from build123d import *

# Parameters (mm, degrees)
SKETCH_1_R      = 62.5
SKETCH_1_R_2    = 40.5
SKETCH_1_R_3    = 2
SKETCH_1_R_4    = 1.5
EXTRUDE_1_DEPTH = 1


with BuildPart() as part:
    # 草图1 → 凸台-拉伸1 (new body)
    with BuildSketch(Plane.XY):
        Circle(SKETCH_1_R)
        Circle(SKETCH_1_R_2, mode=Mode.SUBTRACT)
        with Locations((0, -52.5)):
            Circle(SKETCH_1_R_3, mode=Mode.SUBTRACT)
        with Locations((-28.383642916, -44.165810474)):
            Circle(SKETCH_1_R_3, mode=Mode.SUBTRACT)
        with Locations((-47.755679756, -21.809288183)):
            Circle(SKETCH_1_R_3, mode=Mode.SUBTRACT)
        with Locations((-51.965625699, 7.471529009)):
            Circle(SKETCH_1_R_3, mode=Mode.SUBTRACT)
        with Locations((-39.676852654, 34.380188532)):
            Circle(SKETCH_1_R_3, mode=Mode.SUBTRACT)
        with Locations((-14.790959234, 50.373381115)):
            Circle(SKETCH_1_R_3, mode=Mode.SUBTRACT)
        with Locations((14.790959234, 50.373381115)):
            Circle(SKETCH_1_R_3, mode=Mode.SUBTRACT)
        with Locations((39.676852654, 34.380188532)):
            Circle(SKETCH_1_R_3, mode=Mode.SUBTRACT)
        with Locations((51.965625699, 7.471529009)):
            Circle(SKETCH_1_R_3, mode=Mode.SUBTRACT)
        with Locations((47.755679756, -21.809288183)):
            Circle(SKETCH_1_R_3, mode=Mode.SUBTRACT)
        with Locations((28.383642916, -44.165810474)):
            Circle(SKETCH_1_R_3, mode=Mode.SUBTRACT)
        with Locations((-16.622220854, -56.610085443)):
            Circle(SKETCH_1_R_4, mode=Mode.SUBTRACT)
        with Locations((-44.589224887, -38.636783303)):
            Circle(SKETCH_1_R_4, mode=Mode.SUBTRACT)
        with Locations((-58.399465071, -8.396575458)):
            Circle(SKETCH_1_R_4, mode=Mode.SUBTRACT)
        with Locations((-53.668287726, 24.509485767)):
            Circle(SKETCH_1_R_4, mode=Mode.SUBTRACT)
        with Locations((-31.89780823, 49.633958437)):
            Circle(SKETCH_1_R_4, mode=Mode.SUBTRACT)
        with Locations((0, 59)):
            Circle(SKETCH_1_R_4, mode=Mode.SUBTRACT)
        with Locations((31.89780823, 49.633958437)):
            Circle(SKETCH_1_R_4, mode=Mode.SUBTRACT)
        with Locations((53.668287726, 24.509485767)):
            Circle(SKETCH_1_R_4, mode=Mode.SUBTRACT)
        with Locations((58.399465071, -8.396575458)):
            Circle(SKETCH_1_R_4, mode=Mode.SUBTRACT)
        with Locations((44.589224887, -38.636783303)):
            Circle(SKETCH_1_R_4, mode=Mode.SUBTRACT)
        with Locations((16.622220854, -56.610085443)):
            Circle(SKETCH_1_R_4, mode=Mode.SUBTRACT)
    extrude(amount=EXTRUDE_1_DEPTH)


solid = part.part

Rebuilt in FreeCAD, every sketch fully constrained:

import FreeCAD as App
import Part
import Sketcher

doc = App.newDocument("Part")
params = doc.addObject("Spreadsheet::Sheet", "Params")
for row, (alias, value) in enumerate([
    ("sketch1_diameter", "125 mm"),
    ("sketch1_diameter2", "3 mm"),
    ("sketch1_diameter3", "4 mm"),
    ("sketch1_diameter4", "81 mm"),
    ("pad1_length", "1 mm"),
], start=1):
    params.set(f"A{row}", alias)
    params.set(f"B{row}", "=" + value)
    params.setAlias(f"B{row}", alias)

body = doc.addObject("PartDesign::Body", "Body")

# Sketch on XY plane
sketch1 = body.newObject("Sketcher::SketchObject", "Sketch")
sketch1.AttachmentSupport = (doc.getObject("XY_Plane"), [""])
sketch1.MapMode = "FlatFace"
sketch1.addGeometry(Part.Circle(App.Vector(0, 0, 0), App.Vector(0, 0, 1), 62.5), False)
sketch1.addGeometry(Part.Circle(App.Vector(-44.6, -38.6, 0), App.Vector(0, 0, 1), 1.5), False)
sketch1.addGeometry(Part.Circle(App.Vector(-16.6, -56.6, 0), App.Vector(0, 0, 1), 1.5), False)
sketch1.addGeometry(Part.Circle(App.Vector(-28.4, -44.2, 0), App.Vector(0, 0, 1), 2), False)
sketch1.addGeometry(Part.Circle(App.Vector(-47.8, -21.8, 0), App.Vector(0, 0, 1), 2), False)
sketch1.addGeometry(Part.Circle(App.Vector(-58.4, -8.4, 0), App.Vector(0, 0, 1), 1.5), False)
sketch1.addGeometry(Part.Circle(App.Vector(0, -52.5, 0), App.Vector(0, 0, 1), 2), False)
sketch1.addGeometry(Part.Circle(App.Vector(16.6, -56.6, 0), App.Vector(0, 0, 1), 1.5), False)
sketch1.addGeometry(Part.Circle(App.Vector(28.4, -44.2, 0), App.Vector(0, 0, 1), 2), False)
sketch1.addGeometry(Part.Circle(App.Vector(44.6, -38.6, 0), App.Vector(0, 0, 1), 1.5), False)
sketch1.addGeometry(Part.Circle(App.Vector(0, 0, 0), App.Vector(0, 0, 1), 40.5), False)
sketch1.addGeometry(Part.Circle(App.Vector(47.8, -21.8, 0), App.Vector(0, 0, 1), 2), False)
sketch1.addGeometry(Part.Circle(App.Vector(58.4, -8.4, 0), App.Vector(0, 0, 1), 1.5), False)
sketch1.addGeometry(Part.Circle(App.Vector(-52, 7.5, 0), App.Vector(0, 0, 1), 2), False)
sketch1.addGeometry(Part.Circle(App.Vector(-53.7, 24.5, 0), App.Vector(0, 0, 1), 1.5), False)
sketch1.addGeometry(Part.Circle(App.Vector(-39.7, 34.4, 0), App.Vector(0, 0, 1), 2), False)
sketch1.addGeometry(Part.Circle(App.Vector(-31.9, 49.6, 0), App.Vector(0, 0, 1), 1.5), False)
sketch1.addGeometry(Part.Circle(App.Vector(-14.8, 50.4, 0), App.Vector(0, 0, 1), 2), False)
sketch1.addGeometry(Part.Circle(App.Vector(52, 7.5, 0), App.Vector(0, 0, 1), 2), False)
sketch1.addGeometry(Part.Circle(App.Vector(53.7, 24.5, 0), App.Vector(0, 0, 1), 1.5), False)
sketch1.addGeometry(Part.Circle(App.Vector(14.8, 50.4, 0), App.Vector(0, 0, 1), 2), False)
sketch1.addGeometry(Part.Circle(App.Vector(0, 59, 0), App.Vector(0, 0, 1), 1.5), False)
sketch1.addGeometry(Part.Circle(App.Vector(39.7, 34.4, 0), App.Vector(0, 0, 1), 2), False)
sketch1.addGeometry(Part.Circle(App.Vector(31.9, 49.6, 0), App.Vector(0, 0, 1), 1.5), False)
sketch1.addConstraint(Sketcher.Constraint("Coincident", 0, 3, -1, 1))
sketch1.addConstraint(Sketcher.Constraint("Coincident", 10, 3, -1, 1))
sketch1.addConstraint(Sketcher.Constraint("Equal", 1, 2))
sketch1.addConstraint(Sketcher.Constraint("Equal", 3, 4))
sketch1.addConstraint(Sketcher.Constraint("Equal", 2, 5))
sketch1.addConstraint(Sketcher.Constraint("Equal", 4, 6))
sketch1.addConstraint(Sketcher.Constraint("Equal", 5, 7))
sketch1.addConstraint(Sketcher.Constraint("Equal", 6, 8))
sketch1.addConstraint(Sketcher.Constraint("Equal", 7, 9))
sketch1.addConstraint(Sketcher.Constraint("Equal", 8, 11))
sketch1.addConstraint(Sketcher.Constraint("Equal", 9, 12))
sketch1.addConstraint(Sketcher.Constraint("Equal", 11, 13))
sketch1.addConstraint(Sketcher.Constraint("Equal", 12, 14))
sketch1.addConstraint(Sketcher.Constraint("Equal", 13, 15))
sketch1.addConstraint(Sketcher.Constraint("Equal", 14, 16))
sketch1.addConstraint(Sketcher.Constraint("Equal", 15, 17))
sketch1.addConstraint(Sketcher.Constraint("Equal", 17, 18))
sketch1.addConstraint(Sketcher.Constraint("Equal", 16, 19))
sketch1.addConstraint(Sketcher.Constraint("Equal", 18, 20))
sketch1.addConstraint(Sketcher.Constraint("Equal", 19, 21))
sketch1.addConstraint(Sketcher.Constraint("Equal", 20, 22))
sketch1.addConstraint(Sketcher.Constraint("Equal", 21, 23))
sketch1.addConstraint(Sketcher.Constraint("Symmetric", 2, 3, 7, 3, -2))
sketch1.addConstraint(Sketcher.Constraint("Symmetric", 3, 3, 8, 3, -2))
sketch1.addConstraint(Sketcher.Constraint("Symmetric", 1, 3, 9, 3, -2))
sketch1.addConstraint(Sketcher.Constraint("Symmetric", 4, 3, 11, 3, -2))
sketch1.addConstraint(Sketcher.Constraint("Symmetric", 5, 3, 12, 3, -2))
sketch1.addConstraint(Sketcher.Constraint("Symmetric", 13, 3, 18, 3, -2))
sketch1.addConstraint(Sketcher.Constraint("Symmetric", 14, 3, 19, 3, -2))
sketch1.addConstraint(Sketcher.Constraint("Symmetric", 17, 3, 20, 3, -2))
sketch1.addConstraint(Sketcher.Constraint("Symmetric", 15, 3, 22, 3, -2))
sketch1.addConstraint(Sketcher.Constraint("Symmetric", 16, 3, 23, 3, -2))
sketch1.addConstraint(Sketcher.Constraint("PointOnObject", 6, 3, -2))
sketch1.addConstraint(Sketcher.Constraint("PointOnObject", 21, 3, -2))
sketch1.addConstraint(Sketcher.Constraint("Diameter", 0, 125.0))
sketch1.addConstraint(Sketcher.Constraint("Diameter", 1, 3.0))
sketch1.addConstraint(Sketcher.Constraint("Diameter", 3, 4.0))
sketch1.addConstraint(Sketcher.Constraint("Diameter", 10, 81.0))
sketch1.addConstraint(Sketcher.Constraint("DistanceY", -1, 1, 21, 3, 59.0))
sketch1.addConstraint(Sketcher.Constraint("DistanceY", 6, 3, -1, 1, 52.5))
sketch1.addConstraint(Sketcher.Constraint("DistanceX", 13, 3, 1, 3, 7.376401))
sketch1.addConstraint(Sketcher.Constraint("DistanceX", 2, 3, -1, 1, 16.622221))
sketch1.addConstraint(Sketcher.Constraint("DistanceY", 3, 3, -1, 1, 44.16581))
sketch1.addConstraint(Sketcher.Constraint("DistanceX", 4, 3, -1, 1, 47.75568))
sketch1.addConstraint(Sketcher.Constraint("DistanceY", 4, 3, -1, 1, 21.809288))
sketch1.addConstraint(Sketcher.Constraint("DistanceY", -1, 1, 13, 3, 7.471529))
sketch1.addConstraint(Sketcher.Constraint("DistanceY", -1, 1, 15, 3, 34.380189))
sketch1.addConstraint(Sketcher.Constraint("DistanceX", 16, 3, -1, 1, 31.897808))
sketch1.addConstraint(Sketcher.Constraint("DistanceY", -1, 1, 16, 3, 49.633958))
sketch1.addConstraint(Sketcher.Constraint("DistanceX", 17, 3, -1, 1, 14.790959))
sketch1.addConstraint(Sketcher.Constraint("DistanceY", -1, 1, 17, 3, 50.373381))
sketch1.addConstraint(Sketcher.Constraint("DistanceX", 1, 3, 3, 3, 16.205582))
sketch1.addConstraint(Sketcher.Constraint("DistanceX", 5, 3, 1, 3, 13.81024))
sketch1.addConstraint(Sketcher.Constraint("DistanceY", 2, 3, 5, 3, 48.21351))
sketch1.addConstraint(Sketcher.Constraint("DistanceY", 5, 3, 14, 3, 32.906061))
sketch1.addConstraint(Sketcher.Constraint("DistanceX", 14, 3, 16, 3, 21.770479))
sketch1.addConstraint(Sketcher.Constraint("DistanceX", 1, 3, -1, 1, 44.589225))
sketch1.addConstraint(Sketcher.Constraint("DistanceY", 1, 3, -1, 1, 38.636783))
sketch1.addConstraint(Sketcher.Constraint("DistanceY", 2, 3, -1, 1, 56.610085))
sketch1.addConstraint(Sketcher.Constraint("DistanceX", 15, 3, -1, 1, 39.676853))
sketch1.setExpression("Constraints[34]", "Params.sketch1_diameter")
sketch1.setExpression("Constraints[35]", "Params.sketch1_diameter2")
sketch1.setExpression("Constraints[36]", "Params.sketch1_diameter3")
sketch1.setExpression("Constraints[37]", "Params.sketch1_diameter4")
pad1 = body.newObject("PartDesign::Pad", "Pad")
pad1.Profile = sketch1
pad1.setExpression("Length", "Params.pad1_length")

doc.recompute()
